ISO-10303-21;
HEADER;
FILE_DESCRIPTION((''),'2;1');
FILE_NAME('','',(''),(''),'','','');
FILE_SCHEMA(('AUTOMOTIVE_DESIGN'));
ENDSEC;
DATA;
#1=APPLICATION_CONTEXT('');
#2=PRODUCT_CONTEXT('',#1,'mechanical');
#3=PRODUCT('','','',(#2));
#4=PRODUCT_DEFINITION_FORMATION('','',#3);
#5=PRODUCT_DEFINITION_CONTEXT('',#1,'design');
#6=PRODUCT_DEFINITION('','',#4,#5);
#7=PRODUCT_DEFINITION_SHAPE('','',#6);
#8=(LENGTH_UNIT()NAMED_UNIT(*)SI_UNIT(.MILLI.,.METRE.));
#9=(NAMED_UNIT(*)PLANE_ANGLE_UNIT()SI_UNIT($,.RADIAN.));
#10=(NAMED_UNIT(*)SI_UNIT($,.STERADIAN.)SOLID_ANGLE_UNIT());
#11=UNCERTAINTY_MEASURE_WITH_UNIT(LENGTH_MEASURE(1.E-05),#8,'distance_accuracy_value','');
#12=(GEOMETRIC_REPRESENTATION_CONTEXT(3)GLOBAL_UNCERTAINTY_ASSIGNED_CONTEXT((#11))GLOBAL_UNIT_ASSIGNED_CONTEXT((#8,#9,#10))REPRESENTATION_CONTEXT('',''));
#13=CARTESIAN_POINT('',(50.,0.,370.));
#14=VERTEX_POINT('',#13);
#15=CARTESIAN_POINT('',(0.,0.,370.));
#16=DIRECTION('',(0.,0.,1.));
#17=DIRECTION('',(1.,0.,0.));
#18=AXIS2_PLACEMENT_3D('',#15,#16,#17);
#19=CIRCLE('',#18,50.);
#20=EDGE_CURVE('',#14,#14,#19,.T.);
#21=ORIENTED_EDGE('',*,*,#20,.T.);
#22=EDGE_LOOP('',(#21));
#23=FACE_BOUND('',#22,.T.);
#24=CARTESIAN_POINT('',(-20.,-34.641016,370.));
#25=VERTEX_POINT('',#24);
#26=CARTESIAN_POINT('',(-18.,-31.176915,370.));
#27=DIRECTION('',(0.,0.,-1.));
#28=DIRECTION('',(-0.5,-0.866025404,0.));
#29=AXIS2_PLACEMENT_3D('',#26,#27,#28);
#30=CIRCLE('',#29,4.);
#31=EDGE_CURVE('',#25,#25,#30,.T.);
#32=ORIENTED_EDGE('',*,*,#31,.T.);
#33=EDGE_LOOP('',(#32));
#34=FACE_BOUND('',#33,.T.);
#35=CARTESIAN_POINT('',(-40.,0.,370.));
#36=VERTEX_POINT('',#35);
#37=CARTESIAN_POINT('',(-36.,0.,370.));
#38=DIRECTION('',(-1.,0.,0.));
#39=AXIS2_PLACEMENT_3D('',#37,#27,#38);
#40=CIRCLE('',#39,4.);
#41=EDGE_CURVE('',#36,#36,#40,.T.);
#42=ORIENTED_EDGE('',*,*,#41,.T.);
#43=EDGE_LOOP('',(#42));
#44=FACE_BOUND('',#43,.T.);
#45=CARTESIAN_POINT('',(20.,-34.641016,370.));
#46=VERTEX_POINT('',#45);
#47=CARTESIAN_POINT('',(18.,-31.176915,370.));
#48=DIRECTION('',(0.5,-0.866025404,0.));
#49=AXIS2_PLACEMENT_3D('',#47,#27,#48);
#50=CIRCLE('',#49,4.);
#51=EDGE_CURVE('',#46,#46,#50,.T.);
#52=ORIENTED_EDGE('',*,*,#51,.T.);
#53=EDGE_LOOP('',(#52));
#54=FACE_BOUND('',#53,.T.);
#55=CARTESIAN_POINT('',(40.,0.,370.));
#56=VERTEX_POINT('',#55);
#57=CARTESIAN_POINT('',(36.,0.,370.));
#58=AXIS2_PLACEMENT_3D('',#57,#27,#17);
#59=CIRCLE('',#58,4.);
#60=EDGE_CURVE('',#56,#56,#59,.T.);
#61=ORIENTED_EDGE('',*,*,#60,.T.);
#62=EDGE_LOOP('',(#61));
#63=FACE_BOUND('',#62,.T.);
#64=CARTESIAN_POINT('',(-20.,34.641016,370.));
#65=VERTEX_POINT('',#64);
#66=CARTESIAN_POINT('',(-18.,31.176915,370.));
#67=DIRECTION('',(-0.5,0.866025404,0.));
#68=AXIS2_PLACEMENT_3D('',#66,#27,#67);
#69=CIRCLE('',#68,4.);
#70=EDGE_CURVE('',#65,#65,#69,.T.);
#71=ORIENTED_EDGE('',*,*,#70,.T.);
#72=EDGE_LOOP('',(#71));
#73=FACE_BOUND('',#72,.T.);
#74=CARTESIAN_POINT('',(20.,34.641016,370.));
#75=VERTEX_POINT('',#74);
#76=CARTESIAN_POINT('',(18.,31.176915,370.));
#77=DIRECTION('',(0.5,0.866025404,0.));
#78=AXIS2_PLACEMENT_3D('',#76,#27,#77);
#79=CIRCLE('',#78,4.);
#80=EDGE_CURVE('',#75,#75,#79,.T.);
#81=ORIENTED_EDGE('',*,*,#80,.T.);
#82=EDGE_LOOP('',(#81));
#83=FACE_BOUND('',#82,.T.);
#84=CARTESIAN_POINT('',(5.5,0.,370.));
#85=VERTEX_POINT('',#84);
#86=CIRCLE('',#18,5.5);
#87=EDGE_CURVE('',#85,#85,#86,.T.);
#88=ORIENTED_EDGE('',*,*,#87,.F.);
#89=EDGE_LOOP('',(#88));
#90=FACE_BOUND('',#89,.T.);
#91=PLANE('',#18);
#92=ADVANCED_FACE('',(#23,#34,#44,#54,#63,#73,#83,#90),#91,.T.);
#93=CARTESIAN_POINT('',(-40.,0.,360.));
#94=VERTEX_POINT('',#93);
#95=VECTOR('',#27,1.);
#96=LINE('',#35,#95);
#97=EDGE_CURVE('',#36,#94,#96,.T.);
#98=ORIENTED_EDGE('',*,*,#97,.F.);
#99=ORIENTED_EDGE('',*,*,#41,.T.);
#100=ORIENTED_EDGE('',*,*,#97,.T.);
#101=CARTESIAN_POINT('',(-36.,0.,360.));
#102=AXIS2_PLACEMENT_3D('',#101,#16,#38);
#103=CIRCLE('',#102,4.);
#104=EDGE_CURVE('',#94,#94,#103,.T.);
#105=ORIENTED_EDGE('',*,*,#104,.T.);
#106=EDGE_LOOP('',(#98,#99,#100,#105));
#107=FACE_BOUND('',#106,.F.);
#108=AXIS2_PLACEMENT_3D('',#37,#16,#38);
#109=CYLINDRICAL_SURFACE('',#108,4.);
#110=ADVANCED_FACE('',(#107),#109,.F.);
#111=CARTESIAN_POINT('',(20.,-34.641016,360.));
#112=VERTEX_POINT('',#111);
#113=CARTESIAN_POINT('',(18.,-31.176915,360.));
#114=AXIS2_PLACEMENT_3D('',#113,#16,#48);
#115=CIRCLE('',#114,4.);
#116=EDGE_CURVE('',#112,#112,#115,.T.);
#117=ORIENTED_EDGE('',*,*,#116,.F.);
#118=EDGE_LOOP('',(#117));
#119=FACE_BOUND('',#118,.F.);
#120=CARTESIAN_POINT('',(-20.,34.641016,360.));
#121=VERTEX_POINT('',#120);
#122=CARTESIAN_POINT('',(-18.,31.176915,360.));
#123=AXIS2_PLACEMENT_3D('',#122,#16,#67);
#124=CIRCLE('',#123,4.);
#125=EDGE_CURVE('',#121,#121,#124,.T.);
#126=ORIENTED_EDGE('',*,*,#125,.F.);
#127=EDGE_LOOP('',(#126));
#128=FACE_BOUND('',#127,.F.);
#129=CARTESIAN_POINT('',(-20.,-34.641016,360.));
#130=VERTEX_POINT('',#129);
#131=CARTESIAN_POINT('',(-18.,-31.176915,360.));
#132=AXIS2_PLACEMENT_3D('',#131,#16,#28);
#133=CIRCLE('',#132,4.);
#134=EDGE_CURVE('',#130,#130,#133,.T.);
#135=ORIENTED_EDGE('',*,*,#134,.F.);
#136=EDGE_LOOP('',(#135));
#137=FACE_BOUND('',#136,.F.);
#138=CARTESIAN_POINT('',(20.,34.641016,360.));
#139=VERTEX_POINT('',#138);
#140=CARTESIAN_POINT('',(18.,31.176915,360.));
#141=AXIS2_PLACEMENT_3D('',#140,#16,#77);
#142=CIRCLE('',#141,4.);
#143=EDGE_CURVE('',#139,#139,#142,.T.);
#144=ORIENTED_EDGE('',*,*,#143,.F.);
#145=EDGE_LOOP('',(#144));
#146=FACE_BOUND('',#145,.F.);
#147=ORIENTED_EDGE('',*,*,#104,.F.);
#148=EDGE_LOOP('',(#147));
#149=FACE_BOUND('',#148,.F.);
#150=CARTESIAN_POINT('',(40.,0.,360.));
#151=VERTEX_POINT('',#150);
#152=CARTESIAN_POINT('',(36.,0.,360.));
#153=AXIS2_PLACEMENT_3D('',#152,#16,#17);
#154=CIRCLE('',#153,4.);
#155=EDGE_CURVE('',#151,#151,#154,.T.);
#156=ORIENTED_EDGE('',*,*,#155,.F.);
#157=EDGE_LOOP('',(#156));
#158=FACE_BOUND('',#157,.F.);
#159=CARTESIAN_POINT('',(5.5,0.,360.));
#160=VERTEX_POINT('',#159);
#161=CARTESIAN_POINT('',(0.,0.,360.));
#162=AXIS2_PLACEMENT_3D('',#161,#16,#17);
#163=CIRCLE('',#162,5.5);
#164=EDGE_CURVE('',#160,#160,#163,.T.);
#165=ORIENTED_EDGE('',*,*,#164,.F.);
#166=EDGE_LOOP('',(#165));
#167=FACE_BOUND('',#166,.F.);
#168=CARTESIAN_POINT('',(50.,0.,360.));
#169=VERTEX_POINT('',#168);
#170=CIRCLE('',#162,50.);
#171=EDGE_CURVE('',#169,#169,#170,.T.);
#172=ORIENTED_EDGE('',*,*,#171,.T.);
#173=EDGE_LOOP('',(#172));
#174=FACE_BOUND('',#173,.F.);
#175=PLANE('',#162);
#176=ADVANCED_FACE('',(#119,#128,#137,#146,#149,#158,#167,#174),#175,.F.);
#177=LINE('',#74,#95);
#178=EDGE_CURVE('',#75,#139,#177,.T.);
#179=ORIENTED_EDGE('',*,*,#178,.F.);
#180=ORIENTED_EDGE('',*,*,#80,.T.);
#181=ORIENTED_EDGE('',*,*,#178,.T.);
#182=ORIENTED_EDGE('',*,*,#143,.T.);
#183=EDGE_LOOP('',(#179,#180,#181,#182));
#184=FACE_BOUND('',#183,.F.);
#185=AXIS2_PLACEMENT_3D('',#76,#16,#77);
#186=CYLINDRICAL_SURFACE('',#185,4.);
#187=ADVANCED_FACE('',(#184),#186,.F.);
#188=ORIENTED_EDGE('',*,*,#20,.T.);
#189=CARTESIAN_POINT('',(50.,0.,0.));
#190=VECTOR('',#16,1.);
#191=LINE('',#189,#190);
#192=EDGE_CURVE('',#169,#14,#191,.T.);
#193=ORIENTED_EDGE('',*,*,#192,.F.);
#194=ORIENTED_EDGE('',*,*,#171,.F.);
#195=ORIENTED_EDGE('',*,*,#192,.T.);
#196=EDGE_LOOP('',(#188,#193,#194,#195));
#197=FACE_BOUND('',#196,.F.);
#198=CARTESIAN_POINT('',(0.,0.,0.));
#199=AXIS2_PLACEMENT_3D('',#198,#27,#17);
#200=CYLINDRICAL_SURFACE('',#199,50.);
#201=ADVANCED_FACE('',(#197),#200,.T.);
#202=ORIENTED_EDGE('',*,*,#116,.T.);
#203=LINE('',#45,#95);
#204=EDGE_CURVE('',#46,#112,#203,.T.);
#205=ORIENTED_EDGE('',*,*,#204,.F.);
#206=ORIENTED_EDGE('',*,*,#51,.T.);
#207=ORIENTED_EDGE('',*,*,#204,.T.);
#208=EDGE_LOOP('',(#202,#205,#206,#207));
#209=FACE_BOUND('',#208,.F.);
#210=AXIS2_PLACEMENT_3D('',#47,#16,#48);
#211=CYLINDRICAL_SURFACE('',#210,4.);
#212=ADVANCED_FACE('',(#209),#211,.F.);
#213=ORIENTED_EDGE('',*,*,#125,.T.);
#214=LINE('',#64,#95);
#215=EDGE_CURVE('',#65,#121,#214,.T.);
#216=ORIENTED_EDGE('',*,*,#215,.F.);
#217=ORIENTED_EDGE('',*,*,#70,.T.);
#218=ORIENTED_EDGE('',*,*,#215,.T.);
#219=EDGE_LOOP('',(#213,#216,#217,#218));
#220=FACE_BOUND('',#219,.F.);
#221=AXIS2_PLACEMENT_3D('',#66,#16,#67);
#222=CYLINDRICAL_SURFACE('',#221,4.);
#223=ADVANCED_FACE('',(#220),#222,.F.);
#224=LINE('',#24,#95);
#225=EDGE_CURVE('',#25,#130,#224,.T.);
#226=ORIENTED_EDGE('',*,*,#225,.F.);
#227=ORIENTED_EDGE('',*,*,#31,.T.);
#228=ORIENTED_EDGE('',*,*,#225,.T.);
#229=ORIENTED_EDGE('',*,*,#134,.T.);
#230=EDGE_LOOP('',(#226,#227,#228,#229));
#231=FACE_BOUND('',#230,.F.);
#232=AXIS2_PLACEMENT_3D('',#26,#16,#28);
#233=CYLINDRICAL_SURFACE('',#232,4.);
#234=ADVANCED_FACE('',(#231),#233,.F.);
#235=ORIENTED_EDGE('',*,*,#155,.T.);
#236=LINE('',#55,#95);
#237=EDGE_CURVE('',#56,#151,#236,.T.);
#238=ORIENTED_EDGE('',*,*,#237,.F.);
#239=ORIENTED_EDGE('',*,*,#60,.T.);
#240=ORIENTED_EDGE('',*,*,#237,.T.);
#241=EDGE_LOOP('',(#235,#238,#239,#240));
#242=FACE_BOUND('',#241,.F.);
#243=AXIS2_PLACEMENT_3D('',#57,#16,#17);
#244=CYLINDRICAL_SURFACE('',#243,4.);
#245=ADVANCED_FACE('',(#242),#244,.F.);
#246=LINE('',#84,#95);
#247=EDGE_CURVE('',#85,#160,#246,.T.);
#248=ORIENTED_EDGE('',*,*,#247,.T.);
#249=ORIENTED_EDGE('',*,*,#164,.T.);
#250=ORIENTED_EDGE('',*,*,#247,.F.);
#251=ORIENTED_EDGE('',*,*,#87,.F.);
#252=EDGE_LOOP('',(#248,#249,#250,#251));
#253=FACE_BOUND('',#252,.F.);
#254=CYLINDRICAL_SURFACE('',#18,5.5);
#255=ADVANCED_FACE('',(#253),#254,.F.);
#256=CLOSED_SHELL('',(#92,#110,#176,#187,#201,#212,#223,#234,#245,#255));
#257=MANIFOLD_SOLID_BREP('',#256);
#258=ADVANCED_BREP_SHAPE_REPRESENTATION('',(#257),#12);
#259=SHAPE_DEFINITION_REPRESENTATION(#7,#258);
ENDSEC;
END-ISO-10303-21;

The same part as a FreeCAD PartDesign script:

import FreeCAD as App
import Part
import Sketcher

V = App.Vector
Q = App.Units.Quantity

doc = App.newDocument("Part")
body = doc.addObject("PartDesign::Body", "Body")

# Sketch on XY plane
sketch1 = doc.addObject("Sketcher::SketchObject", "Sketch")
body.addObject(sketch1)
sketch1.AttachmentSupport = (doc.XY_Plane, [""])
sketch1.MapMode = "FlatFace"
sketch1.addGeometry(Part.Circle(V(0, 0, 0), V(0, 0, 1), 50), False)
sketch1.addConstraint(Sketcher.Constraint("Coincident", 0, 3, -1, 1))
sketch1.addConstraint(Sketcher.Constraint("Diameter", 0, Q("100 mm")))
pad1 = doc.addObject("PartDesign::Pad", "Pad")
body.addObject(pad1)
pad1.Profile = sketch1
pad1.Length = 370

# Sketch on XY plane
sketch2 = doc.addObject("Sketcher::SketchObject", "Sketch001")
body.addObject(sketch2)
sketch2.AttachmentSupport = (doc.XY_Plane, [""])
sketch2.MapMode = "FlatFace"
sketch2.AttachmentOffset = App.Placement(V(0, 0, 360), App.Rotation())
sketch2.addGeometry(Part.Circle(V(0, 0, 0), V(0, 0, 1), 50), False)
sketch2.addConstraint(Sketcher.Constraint("Coincident", 0, 3, -1, 1))
sketch2.addConstraint(Sketcher.Constraint("Diameter", 0, Q("100 mm")))
pocket1 = doc.addObject("PartDesign::Pocket", "Pocket")
body.addObject(pocket1)
pocket1.Profile = sketch2
pocket1.Length = 370

# Sketch on XY plane
sketch3 = doc.addObject("Sketcher::SketchObject", "Sketch002")
body.addObject(sketch3)
sketch3.AttachmentSupport = (doc.XY_Plane, [""])
sketch3.MapMode = "FlatFace"
sketch3.AttachmentOffset = App.Placement(V(0, 0, 370), App.Rotation())
sketch3.addGeometry(Part.Circle(V(0, 0, 0), V(0, 0, 1), 5.5), False)
sketch3.addConstraint(Sketcher.Constraint("Coincident", 0, 3, -1, 1))
sketch3.addConstraint(Sketcher.Constraint("Diameter", 0, Q("11 mm")))
pocket2 = doc.addObject("PartDesign::Pocket", "Pocket001")
body.addObject(pocket2)
pocket2.Profile = sketch3
pocket2.Length = 370

# Sketch on XY plane
sketch4 = doc.addObject("Sketcher::SketchObject", "Sketch003")
body.addObject(sketch4)
sketch4.AttachmentSupport = (doc.XY_Plane, [""])
sketch4.MapMode = "FlatFace"
sketch4.AttachmentOffset = App.Placement(V(0, 0, 370), App.Rotation())
sketch4.addGeometry(Part.Circle(V(36, 0, 0), V(0, 0, 1), 4), False)
sketch4.addConstraint(Sketcher.Constraint("PointOnObject", 0, 3, -1))
sketch4.addConstraint(Sketcher.Constraint("Diameter", 0, Q("8 mm")))
sketch4.addConstraint(Sketcher.Constraint("DistanceX", -1, 1, 0, 3, Q("36 mm")))
pocket3 = doc.addObject("PartDesign::Pocket", "Pocket002")
body.addObject(pocket3)
pocket3.Profile = sketch4
pocket3.Length = 370
doc.recompute()

polarpattern = doc.addObject("PartDesign::PolarPattern", "PolarPattern")
body.addObject(polarpattern)
polarpattern.Originals = [pocket3]
polarpattern.Axis = (doc.Z_Axis, [""])
polarpattern.Angle = 360
polarpattern.Occurrences = 6
body.Tip = polarpattern

doc.recompute()
